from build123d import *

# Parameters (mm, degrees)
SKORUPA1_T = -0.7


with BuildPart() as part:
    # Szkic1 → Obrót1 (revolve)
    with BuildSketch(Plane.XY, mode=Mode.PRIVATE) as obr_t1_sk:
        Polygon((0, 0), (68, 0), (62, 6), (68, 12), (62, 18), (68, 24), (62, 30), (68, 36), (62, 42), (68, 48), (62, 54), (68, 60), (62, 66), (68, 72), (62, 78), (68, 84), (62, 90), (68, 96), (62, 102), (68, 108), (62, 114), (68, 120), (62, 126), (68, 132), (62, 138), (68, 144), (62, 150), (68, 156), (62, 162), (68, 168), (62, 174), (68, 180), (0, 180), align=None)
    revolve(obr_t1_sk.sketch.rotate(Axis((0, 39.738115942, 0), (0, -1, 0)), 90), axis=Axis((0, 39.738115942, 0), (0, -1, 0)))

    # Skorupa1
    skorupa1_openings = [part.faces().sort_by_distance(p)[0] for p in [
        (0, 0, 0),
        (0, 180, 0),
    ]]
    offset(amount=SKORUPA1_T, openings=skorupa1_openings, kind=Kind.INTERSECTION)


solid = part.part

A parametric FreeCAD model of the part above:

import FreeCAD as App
import Part
import Sketcher

V = App.Vector


def faces_at(feature, points):
    """Names of the faces that lie closest to the given points."""
    faces = feature.Shape.Faces
    near = lambda p: min(range(len(faces)), key=lambda i: faces[i].distToShape(Part.Vertex(*p))[0])
    return sorted({f"Face{near(p) + 1}" for p in points})


def add_polygon(sketch, points):
    """Adds a closed chain of lines whose ends are joined by coincident constraints."""
    first, n = sketch.GeometryCount, len(points)
    for a, b in zip(points, points[1:] + points[:1]):
        sketch.addGeometry(Part.LineSegment(App.Vector(*a, 0), App.Vector(*b, 0)), False)
    for i in range(n):
        sketch.addConstraint(Sketcher.Constraint("Coincident", first + i, 2, first + (i + 1) % n, 1))

doc = App.newDocument("Part")
body = doc.addObject("PartDesign::Body", "Body")

sketch1 = body.newObject("Sketcher::SketchObject", "Sketch")
sketch1.AttachmentSupport = (doc.getObject("XY_Plane"), [""])
sketch1.MapMode = "FlatFace"
add_polygon(sketch1, [(0, 0), (68, 0), (62, 6), (68, 12), (62, 18), (68, 24), (62, 30), (68, 36), (62, 42), (68, 48), (62, 54), (68, 60), (62, 66), (68, 72), (62, 78), (68, 84), (62, 90), (68, 96), (62, 102), (68, 108), (62, 114), (68, 120), (62, 126), (68, 132), (62, 138), (68, 144), (62, 150), (68, 156), (62, 162), (68, 168), (62, 174), (68, 180), (0, 180)])
sketch1.addConstraint(Sketcher.Constraint("Horizontal", 0))
sketch1.addConstraint(Sketcher.Constraint("Horizontal", 31))
sketch1.addConstraint(Sketcher.Constraint("Vertical", 32))
sketch1.addConstraint(Sketcher.Constraint("Coincident", 32, 2, -1, 1))
sketch1.addConstraint(Sketcher.Constraint("Perpendicular", 1, 2))
sketch1.addConstraint(Sketcher.Constraint("Perpendicular", 2, 3))
sketch1.addConstraint(Sketcher.Constraint("Perpendicular", 3, 4))
sketch1.addConstraint(Sketcher.Constraint("Perpendicular", 4, 5))
sketch1.addConstraint(Sketcher.Constraint("Perpendicular", 5, 6))
sketch1.addConstraint(Sketcher.Constraint("Perpendicular", 6, 7))
sketch1.addConstraint(Sketcher.Constraint("Perpendicular", 7, 8))
sketch1.addConstraint(Sketcher.Constraint("Perpendicular", 8, 9))
sketch1.addConstraint(Sketcher.Constraint("Perpendicular", 9, 10))
sketch1.addConstraint(Sketcher.Constraint("Perpendicular", 10, 11))
sketch1.addConstraint(Sketcher.Constraint("Perpendicular", 11, 12))
sketch1.addConstraint(Sketcher.Constraint("Perpendicular", 12, 13))
sketch1.addConstraint(Sketcher.Constraint("Perpendicular", 13, 14))
sketch1.addConstraint(Sketcher.Constraint("Perpendicular", 14, 15))
sketch1.addConstraint(Sketcher.Constraint("Perpendicular", 15, 16))
sketch1.addConstraint(Sketcher.Constraint("Perpendicular", 16, 17))
sketch1.addConstraint(Sketcher.Constraint("Perpendicular", 17, 18))
sketch1.addConstraint(Sketcher.Constraint("Perpendicular", 18, 19))
sketch1.addConstraint(Sketcher.Constraint("Perpendicular", 19, 20))
sketch1.addConstraint(Sketcher.Constraint("Perpendicular", 20, 21))
sketch1.addConstraint(Sketcher.Constraint("Perpendicular", 21, 22))
sketch1.addConstraint(Sketcher.Constraint("Perpendicular", 22, 23))
sketch1.addConstraint(Sketcher.Constraint("Perpendicular", 23, 24))
sketch1.addConstraint(Sketcher.Constraint("Perpendicular", 24, 25))
sketch1.addConstraint(Sketcher.Constraint("Perpendicular", 25, 26))
sketch1.addConstraint(Sketcher.Constraint("Perpendicular", 26, 27))
sketch1.addConstraint(Sketcher.Constraint("Perpendicular", 27, 28))
sketch1.addConstraint(Sketcher.Constraint("Perpendicular", 28, 29))
sketch1.addConstraint(Sketcher.Constraint("Perpendicular", 29, 30))
sketch1.addConstraint(Sketcher.Constraint("Vertical", 0, 2, 2, 2))
sketch1.addConstraint(Sketcher.Constraint("Vertical", 1, 2, 3, 2))
sketch1.addConstraint(Sketcher.Constraint("Vertical", 2, 2, 4, 2))
sketch1.addConstraint(Sketcher.Constraint("Vertical", 3, 2, 5, 2))
sketch1.addConstraint(Sketcher.Constraint("Vertical", 4, 2, 6, 2))
sketch1.addConstraint(Sketcher.Constraint("Vertical", 5, 2, 7, 2))
sketch1.addConstraint(Sketcher.Constraint("Vertical", 6, 2, 8, 2))
sketch1.addConstraint(Sketcher.Constraint("Vertical", 7, 2, 9, 2))
sketch1.addConstraint(Sketcher.Constraint("Vertical", 8, 2, 10, 2))
sketch1.addConstraint(Sketcher.Constraint("Vertical", 9, 2, 11, 2))
sketch1.addConstraint(Sketcher.Constraint("Vertical", 10, 2, 12, 2))
sketch1.addConstraint(Sketcher.Constraint("Vertical", 11, 2, 13, 2))
sketch1.addConstraint(Sketcher.Constraint("Vertical", 12, 2, 14, 2))
sketch1.addConstraint(Sketcher.Constraint("Vertical", 13, 2, 15, 2))
sketch1.addConstraint(Sketcher.Constraint("Vertical", 14, 2, 16, 2))
sketch1.addConstraint(Sketcher.Constraint("Vertical", 15, 2, 17, 2))
sketch1.addConstraint(Sketcher.Constraint("Vertical", 16, 2, 18, 2))
sketch1.addConstraint(Sketcher.Constraint("Vertical", 17, 2, 19, 2))
sketch1.addConstraint(Sketcher.Constraint("Vertical", 18, 2, 20, 2))
sketch1.addConstraint(Sketcher.Constraint("Vertical", 19, 2, 21, 2))
sketch1.addConstraint(Sketcher.Constraint("Vertical", 20, 2, 22, 2))
sketch1.addConstraint(Sketcher.Constraint("Vertical", 21, 2, 23, 2))
sketch1.addConstraint(Sketcher.Constraint("Vertical", 22, 2, 24, 2))
sketch1.addConstraint(Sketcher.Constraint("Vertical", 23, 2, 25, 2))
sketch1.addConstraint(Sketcher.Constraint("Vertical", 24, 2, 26, 2))
sketch1.addConstraint(Sketcher.Constraint("Vertical", 25, 2, 27, 2))
sketch1.addConstraint(Sketcher.Constraint("Vertical", 26, 2, 28, 2))
sketch1.addConstraint(Sketcher.Constraint("Vertical", 27, 2, 29, 2))
sketch1.addConstraint(Sketcher.Constraint("Vertical", 28, 2, 30, 2))
sketch1.addConstraint(Sketcher.Constraint("Equal", 1, 2))
sketch1.addConstraint(Sketcher.Constraint("DistanceX", 0, 1, 0, 2, 68.0))
sketch1.addConstraint(Sketcher.Constraint("DistanceY", 32, 2, 32, 1, 180.0))
revolution = body.newObject("PartDesign::Revolution", "Revolution")
revolution.Profile = sketch1
revolution.ReferenceAxis = (sketch1, ["V_Axis"])
revolution.Angle = 360
doc.recompute()

thickness = body.newObject("PartDesign::Thickness", "Thickness")
thickness.Base = (revolution, faces_at(revolution, [(0, 0, 0), (0, 180, 0)]))
thickness.Value = 0.7
thickness.Reversed = True
thickness.Join = "Intersection"

doc.recompute()
